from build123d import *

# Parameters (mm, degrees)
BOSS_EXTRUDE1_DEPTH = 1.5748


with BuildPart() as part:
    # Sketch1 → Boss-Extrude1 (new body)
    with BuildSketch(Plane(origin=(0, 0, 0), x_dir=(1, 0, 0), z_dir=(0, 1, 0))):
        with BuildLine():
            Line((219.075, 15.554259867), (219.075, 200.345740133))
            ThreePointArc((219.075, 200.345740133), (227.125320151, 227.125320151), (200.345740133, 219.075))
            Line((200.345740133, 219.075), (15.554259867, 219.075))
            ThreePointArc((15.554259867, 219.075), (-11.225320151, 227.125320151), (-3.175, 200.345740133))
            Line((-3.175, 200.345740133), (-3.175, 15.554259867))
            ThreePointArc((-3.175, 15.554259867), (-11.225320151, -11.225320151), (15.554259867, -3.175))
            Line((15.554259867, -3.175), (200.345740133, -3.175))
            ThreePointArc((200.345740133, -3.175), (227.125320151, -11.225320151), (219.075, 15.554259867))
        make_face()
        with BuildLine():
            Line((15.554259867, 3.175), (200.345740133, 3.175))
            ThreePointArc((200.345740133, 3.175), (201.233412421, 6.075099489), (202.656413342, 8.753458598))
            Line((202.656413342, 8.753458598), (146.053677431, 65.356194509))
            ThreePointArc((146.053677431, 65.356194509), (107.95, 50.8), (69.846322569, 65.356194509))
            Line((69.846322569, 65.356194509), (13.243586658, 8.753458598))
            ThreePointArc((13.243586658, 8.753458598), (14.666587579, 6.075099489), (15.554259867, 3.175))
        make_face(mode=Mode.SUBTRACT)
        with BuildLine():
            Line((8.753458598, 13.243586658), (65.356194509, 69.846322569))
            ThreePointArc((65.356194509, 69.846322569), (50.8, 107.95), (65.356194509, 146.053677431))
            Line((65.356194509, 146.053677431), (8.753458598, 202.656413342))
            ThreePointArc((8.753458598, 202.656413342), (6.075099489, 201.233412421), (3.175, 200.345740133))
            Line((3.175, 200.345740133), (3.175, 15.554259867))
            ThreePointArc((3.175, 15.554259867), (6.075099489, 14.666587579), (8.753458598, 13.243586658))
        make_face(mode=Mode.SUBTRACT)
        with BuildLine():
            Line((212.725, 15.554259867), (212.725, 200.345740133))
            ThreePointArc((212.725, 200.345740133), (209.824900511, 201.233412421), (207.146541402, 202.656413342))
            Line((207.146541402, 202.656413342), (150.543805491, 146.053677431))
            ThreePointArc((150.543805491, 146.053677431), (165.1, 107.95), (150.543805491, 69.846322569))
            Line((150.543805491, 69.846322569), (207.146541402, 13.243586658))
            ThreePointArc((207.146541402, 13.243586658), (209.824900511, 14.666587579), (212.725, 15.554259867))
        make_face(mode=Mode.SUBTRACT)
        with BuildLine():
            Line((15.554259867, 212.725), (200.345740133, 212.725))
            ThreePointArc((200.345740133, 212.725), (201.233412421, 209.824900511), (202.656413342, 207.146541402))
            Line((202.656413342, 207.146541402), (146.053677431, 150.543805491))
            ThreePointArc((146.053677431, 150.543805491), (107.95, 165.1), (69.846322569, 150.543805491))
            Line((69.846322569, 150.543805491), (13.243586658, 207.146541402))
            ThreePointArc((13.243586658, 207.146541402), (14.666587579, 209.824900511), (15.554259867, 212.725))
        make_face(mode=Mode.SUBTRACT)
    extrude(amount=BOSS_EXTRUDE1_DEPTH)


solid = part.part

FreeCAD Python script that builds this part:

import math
import FreeCAD as App
import Part
import Sketcher
from FreeCAD import Vector
Q = App.Units.Quantity

doc = App.newDocument("Part")
params = doc.addObject("Spreadsheet::Sheet", "Params")
for row, (alias, value) in enumerate([
    ("sketch1_radius", "2.25 in"),
    ("sketch1_radius2", "0.625 in"),
    ("pad1_length", "0.062 in"),
], start=1):
    params.set(f"A{row}", alias)
    params.set(f"B{row}", "=" + value)
    params.setAlias(f"B{row}", alias)

body = doc.addObject("PartDesign::Body", "Body")

# Sketch on XZ plane
sketch1 = body.newObject("Sketcher::SketchObject", "Sketch")
sketch1.AttachmentSupport = (doc.getObject("XZ_Plane"), [""])
sketch1.MapMode = "FlatFace"
sketch1.addGeometry([
    Part.LineSegment(Vector(219, -16, 0), Vector(219, -200, 0)),  # 0
    Part.ArcOfCircle(Part.Circle(Vector(216, -216, 0), Vector(0, 0, 1), 16), math.radians(-168), math.radians(78)),  # 1
    Part.LineSegment(Vector(200, -219, 0), Vector(16, -219, 0)),  # 2
    Part.ArcOfCircle(Part.Circle(Vector(0, -216, 0), Vector(0, 0, 1), 16), math.radians(102), math.radians(348)),  # 3
    Part.LineSegment(Vector(-3, -200, 0), Vector(-3, -16, 0)),  # 4
    Part.ArcOfCircle(Part.Circle(Vector(0, 0, 0), Vector(0, 0, 1), 16), math.radians(12), math.radians(258)),  # 5
    Part.LineSegment(Vector(16, 3, 0), Vector(200, 3, 0)),  # 6
    Part.ArcOfCircle(Part.Circle(Vector(216, 0, 0), Vector(0, 0, 1), 16), math.radians(-78), math.radians(168)),  # 7
    Part.LineSegment(Vector(200, -3, 0), Vector(16, -3, 0)),  # 8
    Part.ArcOfCircle(Part.Circle(Vector(0, 0, 0), Vector(0, 0, 1), 16), math.radians(-33), math.radians(-12)),  # 9
    Part.LineSegment(Vector(13, -9, 0), Vector(70, -65, 0)),  # 10
    Part.ArcOfCircle(Part.Circle(Vector(108, -108, 0), Vector(0, 0, 1), 57), math.radians(48), math.radians(132)),  # 11
    Part.LineSegment(Vector(146, -65, 0), Vector(203, -9, 0)),  # 12
    Part.ArcOfCircle(Part.Circle(Vector(216, 0, 0), Vector(0, 0, 1), 16), math.radians(-168), math.radians(-147)),  # 13
    Part.LineSegment(Vector(65, -70, 0), Vector(9, -13, 0)),  # 14
    Part.ArcOfCircle(Part.Circle(Vector(0, 0, 0), Vector(0, 0, 1), 16), math.radians(-78), math.radians(-57)),  # 15
    Part.LineSegment(Vector(3, -16, 0), Vector(3, -200, 0)),  # 16
    Part.ArcOfCircle(Part.Circle(Vector(0, -216, 0), Vector(0, 0, 1), 16), math.radians(57), math.radians(78)),  # 17
    Part.LineSegment(Vector(9, -203, 0), Vector(65, -146, 0)),  # 18
    Part.ArcOfCircle(Part.Circle(Vector(108, -108, 0), Vector(0, 0, 1), 57), math.radians(138), math.radians(222)),  # 19
    Part.LineSegment(Vector(213, -200, 0), Vector(213, -16, 0)),  # 20
    Part.ArcOfCircle(Part.Circle(Vector(216, 0, 0), Vector(0, 0, 1), 16), math.radians(-123), math.radians(-102)),  # 21
    Part.LineSegment(Vector(207, -13, 0), Vector(151, -70, 0)),  # 22
    Part.ArcOfCircle(Part.Circle(Vector(108, -108, 0), Vector(0, 0, 1), 57), math.radians(-42), math.radians(42)),  # 23
    Part.LineSegment(Vector(151, -146, 0), Vector(207, -203, 0)),  # 24
    Part.ArcOfCircle(Part.Circle(Vector(216, -216, 0), Vector(0, 0, 1), 16), math.radians(102), math.radians(123)),  # 25
    Part.ArcOfCircle(Part.Circle(Vector(0, -216, 0), Vector(0, 0, 1), 16), math.radians(12), math.radians(33)),  # 26
    Part.LineSegment(Vector(16, -213, 0), Vector(200, -213, 0)),  # 27
    Part.ArcOfCircle(Part.Circle(Vector(216, -216, 0), Vector(0, 0, 1), 16), math.radians(147), math.radians(168)),  # 28
    Part.LineSegment(Vector(203, -207, 0), Vector(146, -151, 0)),  # 29
    Part.ArcOfCircle(Part.Circle(Vector(108, -108, 0), Vector(0, 0, 1), 57), math.radians(-132), math.radians(-48)),  # 30
    Part.LineSegment(Vector(70, -151, 0), Vector(13, -207, 0)),  # 31
], False)
sketch1.addConstraint([
    Sketcher.Constraint("Coincident", 0, 2, 1, 2),
    Sketcher.Constraint("Coincident", 1, 1, 2, 1),
    Sketcher.Constraint("Coincident", 2, 2, 3, 2),
    Sketcher.Constraint("Coincident", 3, 1, 4, 1),
    Sketcher.Constraint("Coincident", 4, 2, 5, 2),
    Sketcher.Constraint("Coincident", 5, 1, 6, 1),
    Sketcher.Constraint("Coincident", 6, 2, 7, 2),
    Sketcher.Constraint("Coincident", 7, 1, 0, 1),
    Sketcher.Constraint("Coincident", 8, 2, 9, 2),
    Sketcher.Constraint("Coincident", 9, 1, 10, 1),
    Sketcher.Constraint("Coincident", 10, 2, 11, 2),
    Sketcher.Constraint("Coincident", 11, 1, 12, 1),
    Sketcher.Constraint("Coincident", 12, 2, 13, 2),
    Sketcher.Constraint("Coincident", 13, 1, 8, 1),
    Sketcher.Constraint("Coincident", 14, 2, 15, 2),
    Sketcher.Constraint("Coincident", 15, 1, 16, 1),
    Sketcher.Constraint("Coincident", 16, 2, 17, 2),
    Sketcher.Constraint("Coincident", 17, 1, 18, 1),
    Sketcher.Constraint("Coincident", 18, 2, 19, 2),
    Sketcher.Constraint("Coincident", 19, 1, 14, 1),
    Sketcher.Constraint("Coincident", 20, 2, 21, 2),
    Sketcher.Constraint("Coincident", 21, 1, 22, 1),
    Sketcher.Constraint("Coincident", 22, 2, 23, 2),
    Sketcher.Constraint("Coincident", 23, 1, 24, 1),
    Sketcher.Constraint("Coincident", 24, 2, 25, 2),
    Sketcher.Constraint("Coincident", 25, 1, 20, 1),
    Sketcher.Constraint("Coincident", 26, 1, 27, 1),
    Sketcher.Constraint("Coincident", 27, 2, 28, 2),
    Sketcher.Constraint("Coincident", 28, 1, 29, 1),
    Sketcher.Constraint("Coincident", 29, 2, 30, 2),
    Sketcher.Constraint("Coincident", 30, 1, 31, 1),
    Sketcher.Constraint("Coincident", 31, 2, 26, 2),
    Sketcher.Constraint("Vertical", 0),
    Sketcher.Constraint("Horizontal", 2),
    Sketcher.Constraint("Vertical", 4),
    Sketcher.Constraint("Horizontal", 6),
    Sketcher.Constraint("Horizontal", 8),
    Sketcher.Constraint("Vertical", 16),
    Sketcher.Constraint("Vertical", 20),
    Sketcher.Constraint("Horizontal", 27),
    Sketcher.Constraint("Coincident", 5, 3, -1, 1),
    Sketcher.Constraint("Coincident", 9, 3, -1, 1),
    Sketcher.Constraint("Coincident", 15, 3, -1, 1),
    Sketcher.Constraint("Coincident", 13, 3, 7, 3),
    Sketcher.Constraint("Coincident", 17, 3, 3, 3),
    Sketcher.Constraint("Coincident", 19, 3, 11, 3),
    Sketcher.Constraint("Coincident", 21, 3, 7, 3),
    Sketcher.Constraint("Coincident", 23, 3, 11, 3),
    Sketcher.Constraint("Coincident", 25, 3, 1, 3),
    Sketcher.Constraint("Coincident", 26, 3, 3, 3),
    Sketcher.Constraint("Coincident", 28, 3, 1, 3),
    Sketcher.Constraint("Coincident", 30, 3, 11, 3),
    Sketcher.Constraint("Equal", 1, 3),
    Sketcher.Constraint("Equal", 3, 5),
    Sketcher.Constraint("Equal", 5, 7),
    Sketcher.Constraint("Equal", 7, 9),
    Sketcher.Constraint("Equal", 9, 13),
    Sketcher.Constraint("Equal", 13, 15),
    Sketcher.Constraint("Equal", 15, 17),
    Sketcher.Constraint("Equal", 11, 19),
    Sketcher.Constraint("Equal", 17, 21),
    Sketcher.Constraint("Equal", 19, 23),
    Sketcher.Constraint("Equal", 21, 25),
    Sketcher.Constraint("Equal", 25, 26),
    Sketcher.Constraint("Equal", 26, 28),
    Sketcher.Constraint("Equal", 23, 30),
    Sketcher.Constraint("Symmetric", 3, 1, 16, 2, -2),
    Sketcher.Constraint("Symmetric", 6, 2, 13, 1, -1),
    Sketcher.Constraint("Perpendicular", 10, 12),
    Sketcher.Constraint("Perpendicular", 12, 14),
    Sketcher.Constraint("Perpendicular", 14, 18),
    Sketcher.Constraint("Parallel", 18, 22),
    Sketcher.Constraint("Perpendicular", 22, 24),
    Sketcher.Constraint("Parallel", 24, 29),
    Sketcher.Constraint("Perpendicular", 29, 31),
    Sketcher.Constraint("Horizontal", 1, 3, 3, 3),
    Sketcher.Constraint("Horizontal", 0, 2, 3, 1),
    Sketcher.Constraint("Horizontal", 4, 2, 7, 1),
    Sketcher.Constraint("Horizontal", 10, 2, 11, 1),
    Sketcher.Constraint("Horizontal", 9, 1, 12, 2),
    Sketcher.Constraint("Horizontal", 15, 1, 20, 2),
    Sketcher.Constraint("Horizontal", 14, 2, 21, 1),
    Sketcher.Constraint("Horizontal", 18, 2, 23, 1),
    Sketcher.Constraint("Horizontal", 17, 1, 24, 2),
    Sketcher.Constraint("Horizontal", 29, 2, 30, 1),
    Sketcher.Constraint("Vertical", 2, 2, 5, 1),
    Sketcher.Constraint("Vertical", 14, 2, 17, 1),
    Sketcher.Constraint("Vertical", 18, 2, 19, 1),
    Sketcher.Constraint("Vertical", 8, 2, 26, 1),
    Sketcher.Constraint("Vertical", 12, 2, 28, 1),
    Sketcher.Constraint("Equal", 27, 0),
    Sketcher.Constraint("Equal", 12, 14),
    Sketcher.Constraint("Radius", 11, Q("2.25 in")),
    Sketcher.Constraint("Radius", 1, Q("0.625 in")),
    Sketcher.Constraint("DistanceX", -1, 1, 1, 3, Q("8.5 in")),
    Sketcher.Constraint("DistanceY", 1, 3, -1, 1, Q("8.5 in")),
    Sketcher.Constraint("DistanceY", 8, 2, 5, 1, Q("0.25 in")),
    Sketcher.Constraint("DistanceY", 7, 1, 12, 2, Q("6.800801 mm")),
])
sketch1.setExpression("Constraints[92]", "Params.sketch1_radius")
sketch1.setExpression("Constraints[93]", "Params.sketch1_radius2")
pad1 = body.newObject("PartDesign::Pad", "Pad")
pad1.Profile = sketch1
pad1.setExpression("Length", "Params.pad1_length")
pad1.Reversed = True

doc.recompute()
